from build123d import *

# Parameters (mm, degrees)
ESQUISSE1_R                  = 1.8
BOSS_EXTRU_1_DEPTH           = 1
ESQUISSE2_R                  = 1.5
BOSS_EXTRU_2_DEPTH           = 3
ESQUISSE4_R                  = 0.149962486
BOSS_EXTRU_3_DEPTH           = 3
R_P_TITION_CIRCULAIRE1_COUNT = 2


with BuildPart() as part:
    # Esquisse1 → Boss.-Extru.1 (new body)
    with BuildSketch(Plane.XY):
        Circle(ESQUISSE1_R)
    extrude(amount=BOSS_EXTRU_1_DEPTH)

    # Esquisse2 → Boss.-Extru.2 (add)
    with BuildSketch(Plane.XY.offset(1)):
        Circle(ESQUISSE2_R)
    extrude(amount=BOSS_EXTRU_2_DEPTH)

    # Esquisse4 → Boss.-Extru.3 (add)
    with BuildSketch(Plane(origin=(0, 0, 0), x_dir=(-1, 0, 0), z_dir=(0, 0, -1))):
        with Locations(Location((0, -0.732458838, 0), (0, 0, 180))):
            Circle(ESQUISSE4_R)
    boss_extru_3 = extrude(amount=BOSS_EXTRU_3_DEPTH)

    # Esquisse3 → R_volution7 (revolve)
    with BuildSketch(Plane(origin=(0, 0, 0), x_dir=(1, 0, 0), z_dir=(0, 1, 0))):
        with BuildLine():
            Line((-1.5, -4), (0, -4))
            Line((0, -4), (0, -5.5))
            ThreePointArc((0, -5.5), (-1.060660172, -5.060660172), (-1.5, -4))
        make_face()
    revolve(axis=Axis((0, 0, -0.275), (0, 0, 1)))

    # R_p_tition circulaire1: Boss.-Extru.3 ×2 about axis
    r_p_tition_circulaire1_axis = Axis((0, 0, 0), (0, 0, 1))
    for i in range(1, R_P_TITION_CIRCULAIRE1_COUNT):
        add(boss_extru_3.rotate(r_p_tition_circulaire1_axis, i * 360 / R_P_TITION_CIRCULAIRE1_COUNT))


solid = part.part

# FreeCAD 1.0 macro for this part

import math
import FreeCAD as App
import Part
import Sketcher
from FreeCAD import Vector
Q = App.Units.Quantity

doc = App.newDocument("Part")
body = doc.addObject("PartDesign::Body", "Body")

# Sketch on XY plane
sketch1 = doc.addObject("Sketcher::SketchObject", "Sketch")
body.addObject(sketch1)
sketch1.AttachmentSupport = (doc.XY_Plane, [""])
sketch1.MapMode = "FlatFace"
sketch1.addGeometry(Part.Circle(Vector(0, 0, 0), Vector(0, 0, 1), 1.8), False)
sketch1.addConstraint([
    Sketcher.Constraint("Coincident", 0, 3, -1, 1),
    Sketcher.Constraint("Diameter", 0, Q("3.6 mm")),
])
pad1 = doc.addObject("PartDesign::Pad", "Pad")
body.addObject(pad1)
pad1.Profile = sketch1
pad1.Length = 1

# Sketch on XY plane
sketch2 = doc.addObject("Sketcher::SketchObject", "Sketch001")
body.addObject(sketch2)
sketch2.AttachmentSupport = (doc.XY_Plane, [""])
sketch2.MapMode = "FlatFace"
sketch2.AttachmentOffset = App.Placement(Vector(0, 0, 1), App.Rotation())
sketch2.addGeometry(Part.Circle(Vector(0, 0, 0), Vector(0, 0, 1), 1.5), False)
sketch2.addConstraint([
    Sketcher.Constraint("Coincident", 0, 3, -1, 1),
    Sketcher.Constraint("Diameter", 0, Q("3 mm")),
])
pad2 = doc.addObject("PartDesign::Pad", "Pad001")
body.addObject(pad2)
pad2.Profile = sketch2
pad2.Length = 3

# Sketch on XY plane
sketch3 = doc.addObject("Sketcher::SketchObject", "Sketch002")
body.addObject(sketch3)
sketch3.AttachmentSupport = (doc.XY_Plane, [""])
sketch3.MapMode = "FlatFace"
sketch3.addGeometry(Part.Circle(Vector(0, -0.732459, 0), Vector(0, 0, 1), 0.149962), False)
sketch3.addConstraint([
    Sketcher.Constraint("PointOnObject", 0, 3, -2),
    Sketcher.Constraint("Diameter", 0, Q("0.299925 mm")),
    Sketcher.Constraint("DistanceY", 0, 3, -1, 1, Q("0.732459 mm")),
])
pad3 = doc.addObject("PartDesign::Pad", "Pad002")
body.addObject(pad3)
pad3.Profile = sketch3
pad3.Length = 3
pad3.Reversed = True

# Sketch on XZ plane
sketch4 = doc.addObject("Sketcher::SketchObject", "Sketch003")
body.addObject(sketch4)
sketch4.AttachmentSupport = (doc.XZ_Plane, [""])
sketch4.MapMode = "FlatFace"
sketch4.addGeometry([
    Part.LineSegment(Vector(0, 4, 0), Vector(-1.5, 4, 0)),
    Part.ArcOfCircle(Part.Circle(Vector(0, 4, 0), Vector(0, 0, 1), 1.5), math.radians(90), math.radians(180)),
    Part.LineSegment(Vector(0, 5.5, 0), Vector(0, 4, 0)),
], False)
sketch4.addConstraint([
    Sketcher.Constraint("Coincident", 0, 2, 1, 2),
    Sketcher.Constraint("Coincident", 1, 1, 2, 1),
    Sketcher.Constraint("Coincident", 2, 2, 0, 1),
    Sketcher.Constraint("Horizontal", 0),
    Sketcher.Constraint("Vertical", 2),
    Sketcher.Constraint("Coincident", 2, 2, 1, 3),
    Sketcher.Constraint("PointOnObject", 1, 3, -2),
    Sketcher.Constraint("Radius", 1, Q("1.5 mm")),
    Sketcher.Constraint("DistanceY", -1, 1, 1, 3, Q("4 mm")),
])
revolution = doc.addObject("PartDesign::Revolution", "Revolution")
body.addObject(revolution)
revolution.Profile = sketch4
revolution.ReferenceAxis = (sketch4, ["V_Axis"])
revolution.Angle = 360
doc.recompute()

polarpattern = doc.addObject("PartDesign::PolarPattern", "PolarPattern")
body.addObject(polarpattern)
polarpattern.Originals = [pad3]
polarpattern.Axis = (doc.Z_Axis, [""])
polarpattern.Angle = 360
polarpattern.Occurrences = 2
body.Tip = polarpattern

doc.recompute()
